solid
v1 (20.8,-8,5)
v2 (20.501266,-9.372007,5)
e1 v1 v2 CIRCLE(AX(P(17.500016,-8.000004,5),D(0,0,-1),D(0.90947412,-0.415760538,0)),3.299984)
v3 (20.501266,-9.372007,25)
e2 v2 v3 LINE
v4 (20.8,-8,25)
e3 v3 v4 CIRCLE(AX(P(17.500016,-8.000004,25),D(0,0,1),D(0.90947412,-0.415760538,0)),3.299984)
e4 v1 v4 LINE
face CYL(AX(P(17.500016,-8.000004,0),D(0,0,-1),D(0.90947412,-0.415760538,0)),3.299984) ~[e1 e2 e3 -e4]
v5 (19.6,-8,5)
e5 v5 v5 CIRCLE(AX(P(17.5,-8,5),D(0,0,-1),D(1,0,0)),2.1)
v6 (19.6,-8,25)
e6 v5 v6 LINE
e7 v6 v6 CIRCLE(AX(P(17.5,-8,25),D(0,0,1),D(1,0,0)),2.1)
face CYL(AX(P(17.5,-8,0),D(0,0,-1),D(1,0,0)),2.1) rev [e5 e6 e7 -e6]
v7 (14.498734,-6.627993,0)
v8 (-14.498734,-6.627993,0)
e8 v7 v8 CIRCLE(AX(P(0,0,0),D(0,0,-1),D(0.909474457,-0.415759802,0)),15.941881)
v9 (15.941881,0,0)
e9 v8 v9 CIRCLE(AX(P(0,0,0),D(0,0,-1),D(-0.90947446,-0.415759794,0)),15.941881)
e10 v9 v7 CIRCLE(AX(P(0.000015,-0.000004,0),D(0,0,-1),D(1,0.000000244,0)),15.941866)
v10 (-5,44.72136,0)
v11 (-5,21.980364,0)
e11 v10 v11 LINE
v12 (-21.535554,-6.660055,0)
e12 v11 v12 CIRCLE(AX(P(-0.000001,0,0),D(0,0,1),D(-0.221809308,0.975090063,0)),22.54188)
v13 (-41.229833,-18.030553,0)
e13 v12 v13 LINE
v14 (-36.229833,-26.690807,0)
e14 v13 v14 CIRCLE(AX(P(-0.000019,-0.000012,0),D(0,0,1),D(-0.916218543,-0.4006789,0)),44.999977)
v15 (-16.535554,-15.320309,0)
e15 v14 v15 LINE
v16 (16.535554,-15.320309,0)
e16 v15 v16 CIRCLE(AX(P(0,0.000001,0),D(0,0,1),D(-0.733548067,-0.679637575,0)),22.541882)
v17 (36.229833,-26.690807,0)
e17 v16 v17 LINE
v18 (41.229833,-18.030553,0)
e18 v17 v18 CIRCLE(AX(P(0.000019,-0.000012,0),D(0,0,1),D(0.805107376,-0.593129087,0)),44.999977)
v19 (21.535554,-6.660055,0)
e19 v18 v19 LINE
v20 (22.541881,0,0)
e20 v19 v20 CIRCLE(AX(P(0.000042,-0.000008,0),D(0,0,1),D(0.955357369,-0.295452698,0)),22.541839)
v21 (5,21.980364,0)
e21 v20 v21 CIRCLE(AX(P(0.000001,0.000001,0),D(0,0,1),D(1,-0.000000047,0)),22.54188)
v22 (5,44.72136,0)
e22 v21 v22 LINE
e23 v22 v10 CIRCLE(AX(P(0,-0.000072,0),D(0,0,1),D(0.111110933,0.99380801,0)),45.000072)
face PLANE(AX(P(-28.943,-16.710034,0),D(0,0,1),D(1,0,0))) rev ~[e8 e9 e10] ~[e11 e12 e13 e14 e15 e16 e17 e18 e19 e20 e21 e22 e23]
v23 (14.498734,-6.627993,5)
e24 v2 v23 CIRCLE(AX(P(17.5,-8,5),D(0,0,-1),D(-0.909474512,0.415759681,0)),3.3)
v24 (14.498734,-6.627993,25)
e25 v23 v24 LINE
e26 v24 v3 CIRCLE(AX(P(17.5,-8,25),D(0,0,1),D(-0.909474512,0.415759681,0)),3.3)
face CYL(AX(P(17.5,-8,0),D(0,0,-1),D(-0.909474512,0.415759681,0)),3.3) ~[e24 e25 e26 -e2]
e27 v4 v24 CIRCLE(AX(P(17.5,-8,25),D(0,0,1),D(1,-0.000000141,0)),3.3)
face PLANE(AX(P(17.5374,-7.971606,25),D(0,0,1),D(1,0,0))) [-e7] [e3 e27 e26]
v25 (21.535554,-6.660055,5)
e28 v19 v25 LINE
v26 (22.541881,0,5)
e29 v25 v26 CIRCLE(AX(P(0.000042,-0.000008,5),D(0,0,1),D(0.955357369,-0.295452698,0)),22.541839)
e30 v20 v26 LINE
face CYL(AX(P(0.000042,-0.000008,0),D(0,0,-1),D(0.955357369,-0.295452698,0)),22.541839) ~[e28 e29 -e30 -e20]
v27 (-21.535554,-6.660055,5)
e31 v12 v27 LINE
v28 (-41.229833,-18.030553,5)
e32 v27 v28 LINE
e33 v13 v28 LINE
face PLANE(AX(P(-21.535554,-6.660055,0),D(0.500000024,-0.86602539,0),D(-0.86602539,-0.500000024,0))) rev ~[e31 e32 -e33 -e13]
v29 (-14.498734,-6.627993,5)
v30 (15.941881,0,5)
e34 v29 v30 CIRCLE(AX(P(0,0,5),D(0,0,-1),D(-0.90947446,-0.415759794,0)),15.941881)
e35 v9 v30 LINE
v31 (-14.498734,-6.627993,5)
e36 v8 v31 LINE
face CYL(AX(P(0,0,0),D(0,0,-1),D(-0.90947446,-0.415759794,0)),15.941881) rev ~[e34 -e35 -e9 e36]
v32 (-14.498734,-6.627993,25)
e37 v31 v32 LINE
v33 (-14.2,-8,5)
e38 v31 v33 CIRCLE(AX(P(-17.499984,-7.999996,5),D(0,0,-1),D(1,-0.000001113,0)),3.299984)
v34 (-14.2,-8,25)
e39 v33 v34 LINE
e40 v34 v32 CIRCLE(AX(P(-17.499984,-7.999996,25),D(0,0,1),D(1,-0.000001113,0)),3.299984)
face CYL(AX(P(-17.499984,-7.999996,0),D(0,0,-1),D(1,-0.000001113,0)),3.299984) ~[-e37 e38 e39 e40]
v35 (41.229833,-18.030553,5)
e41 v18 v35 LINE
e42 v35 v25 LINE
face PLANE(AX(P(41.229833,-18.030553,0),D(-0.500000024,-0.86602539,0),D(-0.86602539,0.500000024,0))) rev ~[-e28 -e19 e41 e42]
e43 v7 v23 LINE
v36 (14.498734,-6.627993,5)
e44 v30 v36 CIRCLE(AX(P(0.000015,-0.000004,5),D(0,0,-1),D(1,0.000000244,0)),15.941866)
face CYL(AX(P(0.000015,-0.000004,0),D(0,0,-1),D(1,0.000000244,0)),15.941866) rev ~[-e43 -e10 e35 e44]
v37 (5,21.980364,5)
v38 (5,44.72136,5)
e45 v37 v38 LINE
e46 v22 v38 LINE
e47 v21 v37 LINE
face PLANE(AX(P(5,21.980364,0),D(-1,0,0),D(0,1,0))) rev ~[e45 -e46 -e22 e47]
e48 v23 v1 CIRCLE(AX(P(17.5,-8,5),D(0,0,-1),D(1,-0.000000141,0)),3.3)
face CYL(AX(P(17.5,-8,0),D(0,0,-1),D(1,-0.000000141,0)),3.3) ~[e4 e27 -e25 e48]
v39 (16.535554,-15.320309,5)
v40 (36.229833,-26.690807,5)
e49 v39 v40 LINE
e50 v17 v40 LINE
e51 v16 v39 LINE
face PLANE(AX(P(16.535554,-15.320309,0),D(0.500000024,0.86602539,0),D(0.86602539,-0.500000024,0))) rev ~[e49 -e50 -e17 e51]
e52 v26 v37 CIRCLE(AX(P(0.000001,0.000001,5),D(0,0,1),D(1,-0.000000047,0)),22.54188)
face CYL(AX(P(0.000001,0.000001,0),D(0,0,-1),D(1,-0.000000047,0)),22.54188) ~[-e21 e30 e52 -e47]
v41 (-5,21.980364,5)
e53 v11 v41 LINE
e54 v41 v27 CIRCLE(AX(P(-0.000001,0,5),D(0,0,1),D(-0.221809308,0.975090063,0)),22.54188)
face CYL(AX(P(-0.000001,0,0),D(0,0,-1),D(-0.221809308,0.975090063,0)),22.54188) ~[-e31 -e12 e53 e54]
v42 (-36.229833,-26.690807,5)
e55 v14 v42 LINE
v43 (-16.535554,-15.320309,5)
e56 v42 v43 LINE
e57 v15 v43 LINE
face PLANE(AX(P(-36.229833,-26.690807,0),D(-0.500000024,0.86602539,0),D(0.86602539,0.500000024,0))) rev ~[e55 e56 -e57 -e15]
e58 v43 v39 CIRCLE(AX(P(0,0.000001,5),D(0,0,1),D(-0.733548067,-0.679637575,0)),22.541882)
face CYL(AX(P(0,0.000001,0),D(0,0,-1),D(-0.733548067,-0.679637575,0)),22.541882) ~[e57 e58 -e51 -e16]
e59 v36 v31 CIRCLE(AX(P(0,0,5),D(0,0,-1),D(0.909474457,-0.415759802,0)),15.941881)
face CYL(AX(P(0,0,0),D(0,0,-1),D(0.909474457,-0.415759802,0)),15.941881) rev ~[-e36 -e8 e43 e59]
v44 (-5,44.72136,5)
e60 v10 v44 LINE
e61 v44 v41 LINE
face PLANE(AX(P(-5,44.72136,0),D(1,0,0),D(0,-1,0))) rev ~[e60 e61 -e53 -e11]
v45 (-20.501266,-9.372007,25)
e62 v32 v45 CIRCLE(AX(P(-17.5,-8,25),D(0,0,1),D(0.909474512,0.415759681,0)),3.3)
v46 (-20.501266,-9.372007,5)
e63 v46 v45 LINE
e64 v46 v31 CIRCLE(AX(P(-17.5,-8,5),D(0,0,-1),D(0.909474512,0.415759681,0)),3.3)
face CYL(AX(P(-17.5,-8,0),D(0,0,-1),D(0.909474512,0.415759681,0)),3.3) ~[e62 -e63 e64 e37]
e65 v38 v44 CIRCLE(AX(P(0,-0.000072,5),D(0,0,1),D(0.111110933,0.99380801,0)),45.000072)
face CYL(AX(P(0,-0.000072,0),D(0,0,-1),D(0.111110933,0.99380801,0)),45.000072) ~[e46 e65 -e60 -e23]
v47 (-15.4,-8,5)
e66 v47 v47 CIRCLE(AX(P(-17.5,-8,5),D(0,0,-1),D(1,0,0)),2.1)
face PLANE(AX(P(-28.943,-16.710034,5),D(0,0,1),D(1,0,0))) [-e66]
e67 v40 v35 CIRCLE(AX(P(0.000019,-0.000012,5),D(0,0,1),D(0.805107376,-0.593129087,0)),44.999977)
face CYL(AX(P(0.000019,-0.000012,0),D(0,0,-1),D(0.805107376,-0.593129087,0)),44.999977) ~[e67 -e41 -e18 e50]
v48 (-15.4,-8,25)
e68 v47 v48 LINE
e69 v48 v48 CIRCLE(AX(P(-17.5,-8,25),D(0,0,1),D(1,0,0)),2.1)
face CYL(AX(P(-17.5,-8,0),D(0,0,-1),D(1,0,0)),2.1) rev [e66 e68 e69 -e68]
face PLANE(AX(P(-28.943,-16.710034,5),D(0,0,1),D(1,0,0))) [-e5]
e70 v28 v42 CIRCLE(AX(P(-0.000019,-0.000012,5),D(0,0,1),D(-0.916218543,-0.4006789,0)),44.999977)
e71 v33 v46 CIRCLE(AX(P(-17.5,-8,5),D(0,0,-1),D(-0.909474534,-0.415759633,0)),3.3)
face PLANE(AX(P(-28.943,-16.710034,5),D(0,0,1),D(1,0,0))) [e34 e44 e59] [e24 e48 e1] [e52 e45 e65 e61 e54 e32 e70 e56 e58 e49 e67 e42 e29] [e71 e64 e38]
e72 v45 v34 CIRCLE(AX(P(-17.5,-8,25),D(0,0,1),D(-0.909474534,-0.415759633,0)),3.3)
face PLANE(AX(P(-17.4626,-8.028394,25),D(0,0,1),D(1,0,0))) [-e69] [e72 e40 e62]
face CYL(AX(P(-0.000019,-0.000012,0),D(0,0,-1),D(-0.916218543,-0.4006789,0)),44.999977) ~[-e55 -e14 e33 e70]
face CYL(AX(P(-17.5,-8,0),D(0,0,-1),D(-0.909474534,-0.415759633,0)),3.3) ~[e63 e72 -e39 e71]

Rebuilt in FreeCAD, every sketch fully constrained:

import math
import FreeCAD as App
import Part
import Sketcher

V = App.Vector
Q = App.Units.Quantity

doc = App.newDocument("Part")
params = doc.addObject("Spreadsheet::Sheet", "Params")
for row, (alias, value) in enumerate([
    ("pad1_length", "5 mm"),
    ("sketch2_diameter", "4.2 mm"),
    ("sketch2_diameter2", "4.2 mm"),
    ("sketch2_radius", "3.3 mm"),
    ("sketch2_radius2", "3.3 mm"),
    ("pad2_length", "25 mm"),
], start=1):
    params.set(f"A{row}", alias)
    params.set(f"B{row}", "=" + value)
    params.setAlias(f"B{row}", alias)

body = doc.addObject("PartDesign::Body", "Body")

# Sketch on XY plane
sketch1 = body.newObject("Sketcher::SketchObject", "Sketch")
sketch1.AttachmentSupport = (doc.getObject("XY_Plane"), [""])
sketch1.MapMode = "FlatFace"
sketch1.addGeometry([
    Part.LineSegment(V(16.535554, -15.320309, 0), V(36.229833, -26.690807, 0)),  # 0
    Part.ArcOfCircle(Part.Circle(V(0.000019, -0.000012, 0), V(0, 0, 1), 44.999977), math.radians(-36.379374), math.radians(-23.620627)),  # 1
    Part.LineSegment(V(41.229833, -18.030553, 0), V(21.535554, -6.660055, 0)),  # 2
    Part.ArcOfCircle(Part.Circle(V(0.000042, -0.000008, 0), V(0, 0, 1), 22.541839), math.radians(-17.184685), math.radians(0.00002)),  # 3
    Part.ArcOfCircle(Part.Circle(V(0.000001, 0.000001, 0), V(0, 0, 1), 22.54188), math.radians(-0.000003), math.radians(77.184675)),  # 4
    Part.LineSegment(V(5, 21.980364, 0), V(5, 44.72136, 0)),  # 5
    Part.ArcOfCircle(Part.Circle(V(0, -0.000072, 0), V(0, 0, 1), 45.000072), math.radians(83.62064), math.radians(96.37936)),  # 6
    Part.LineSegment(V(-5, 44.72136, 0), V(-5, 21.980364, 0)),  # 7
    Part.ArcOfCircle(Part.Circle(V(-0.000001, 0, 0), V(0, 0, 1), 22.54188), math.radians(102.815325), math.radians(197.184674)),  # 8
    Part.LineSegment(V(-21.535554, -6.660055, 0), V(-41.229833, -18.030553, 0)),  # 9
    Part.ArcOfCircle(Part.Circle(V(-0.000019, -0.000012, 0), V(0, 0, 1), 44.999977), math.radians(-156.379373), math.radians(-143.620626)),  # 10
    Part.LineSegment(V(-36.229833, -26.690807, 0), V(-16.535554, -15.320309, 0)),  # 11
    Part.ArcOfCircle(Part.Circle(V(0, 0.000001, 0), V(0, 0, 1), 22.541882), math.radians(-137.184672), math.radians(-42.815328)),  # 12
    Part.ArcOfCircle(Part.Circle(V(0, 0, 0), V(0, 0, 1), 15.941881), math.radians(-155.432826), math.radians(-24.567174)),  # 13
    Part.ArcOfCircle(Part.Circle(V(0, 0, 0), V(0, 0, 1), 15.941881), math.radians(-0.000001), math.radians(204.567173)),  # 14
    Part.ArcOfCircle(Part.Circle(V(0.000015, -0.000004, 0), V(0, 0, 1), 15.941866), math.radians(-24.567182), math.radians(0.000014)),  # 15
], False)
sketch1.addConstraint([
    Sketcher.Constraint("Coincident", 0, 2, 1, 1),
    Sketcher.Constraint("Coincident", 1, 2, 2, 1),
    Sketcher.Constraint("Coincident", 2, 2, 3, 1),
    Sketcher.Constraint("Coincident", 3, 2, 4, 1),
    Sketcher.Constraint("Coincident", 4, 2, 5, 1),
    Sketcher.Constraint("Coincident", 5, 2, 6, 1),
    Sketcher.Constraint("Coincident", 6, 2, 7, 1),
    Sketcher.Constraint("Coincident", 7, 2, 8, 1),
    Sketcher.Constraint("Coincident", 8, 2, 9, 1),
    Sketcher.Constraint("Coincident", 9, 2, 10, 1),
    Sketcher.Constraint("Coincident", 10, 2, 11, 1),
    Sketcher.Constraint("Coincident", 11, 2, 12, 1),
    Sketcher.Constraint("Coincident", 12, 2, 0, 1),
    Sketcher.Constraint("Coincident", 13, 1, 14, 2),
    Sketcher.Constraint("Coincident", 14, 1, 15, 2),
    Sketcher.Constraint("Coincident", 15, 1, 13, 2),
    Sketcher.Constraint("Vertical", 5),
    Sketcher.Constraint("Vertical", 7),
    Sketcher.Constraint("Coincident", 4, 3, -1, 1),
    Sketcher.Constraint("Coincident", 8, 3, -1, 1),
    Sketcher.Constraint("Coincident", 12, 3, -1, 1),
    Sketcher.Constraint("Coincident", 13, 3, -1, 1),
    Sketcher.Constraint("Coincident", 14, 3, -1, 1),
    Sketcher.Constraint("Coincident", 15, 3, 1, 3),
    Sketcher.Constraint("PointOnObject", 6, 3, -2),
    Sketcher.Constraint("PointOnObject", 3, 2, -1),
    Sketcher.Constraint("PointOnObject", 14, 1, -1),
    Sketcher.Constraint("DistanceX", -1, 1, 4, 2, Q("5 mm")),
    Sketcher.Constraint("DistanceX", 6, 2, -1, 1, Q("5 mm")),
    Sketcher.Constraint("DistanceX", 0, 2, 1, 2, Q("5 mm")),
    Sketcher.Constraint("DistanceX", 9, 2, 10, 2, Q("5 mm")),
    Sketcher.Constraint("DistanceX", 8, 2, 11, 2, Q("5 mm")),
    Sketcher.Constraint("DistanceX", 12, 2, 2, 2, Q("5 mm")),
    Sketcher.Constraint("DistanceX", 14, 1, 3, 2, Q("6.6 mm")),
    Sketcher.Constraint("Radius", 3, Q("22.541839 mm")),
    Sketcher.Constraint("Radius", 4, Q("22.54188 mm")),
    Sketcher.Constraint("Radius", 8, Q("22.54188 mm")),
    Sketcher.Constraint("Radius", 1, Q("44.999977 mm")),
    Sketcher.Constraint("Radius", 6, Q("45.000072 mm")),
    Sketcher.Constraint("Radius", 10, Q("44.999977 mm")),
    Sketcher.Constraint("Radius", 12, Q("22.541882 mm")),
    Sketcher.Constraint("Radius", 15, Q("15.941866 mm")),
    Sketcher.Constraint("DistanceY", 0, 2, 3, 3, Q("26.690799 mm")),
    Sketcher.Constraint("DistanceY", 9, 2, 8, 2, Q("11.370498 mm")),
    Sketcher.Constraint("DistanceY", 12, 2, 3, 3, Q("15.320301 mm")),
    Sketcher.Constraint("DistanceY", 5, 1, 5, 2, Q("22.740996 mm")),
    Sketcher.Constraint("DistanceY", 11, 2, -1, 1, Q("15.320309 mm")),
    Sketcher.Constraint("DistanceY", 12, 2, -1, 1, Q("15.320309 mm")),
    Sketcher.Constraint("DistanceX", 9, 2, 8, 2, Q("19.694279 mm")),
    Sketcher.Constraint("DistanceY", 9, 2, 10, 3, Q("18.030541 mm")),
    Sketcher.Constraint("DistanceX", 8, 2, 13, 1, Q("7.03682 mm")),
    Sketcher.Constraint("DistanceX", 15, 1, 2, 2, Q("7.03682 mm")),
])
pad1 = body.newObject("PartDesign::Pad", "Pad")
pad1.Profile = sketch1
pad1.setExpression("Length", "Params.pad1_length")

# Sketch on XY plane
sketch2 = body.newObject("Sketcher::SketchObject", "Sketch001")
sketch2.AttachmentSupport = (doc.getObject("XY_Plane"), [""])
sketch2.MapMode = "FlatFace"
sketch2.addGeometry([
    Part.ArcOfCircle(Part.Circle(V(-17.5, -8, 0), V(0, 0, 1), 3.3), math.radians(-155.432837), math.radians(0.000004)),  # 0
    Part.ArcOfCircle(Part.Circle(V(-17.499984, -7.999996, 0), V(0, 0, 1), 3.299984), math.radians(-0.000064), math.radians(24.56722)),  # 1
    Part.ArcOfCircle(Part.Circle(V(-17.5, -8, 0), V(0, 0, 1), 3.3), math.radians(24.567166), math.radians(204.567166)),  # 2
    Part.Circle(V(-17.5, -8, 0), V(0, 0, 1), 2.1),  # 3
    Part.ArcOfCircle(Part.Circle(V(17.5, -8, 0), V(0, 0, 1), 3.3), math.radians(-0.000008), math.radians(155.432841)),  # 4
    Part.ArcOfCircle(Part.Circle(V(17.5, -8, 0), V(0, 0, 1), 3.3), math.radians(155.432834), math.radians(335.432834)),  # 5
    Part.ArcOfCircle(Part.Circle(V(17.500016, -8.000004, 0), V(0, 0, 1), 3.299984), math.radians(-24.56722), math.radians(0.000064)),  # 6
    Part.Circle(V(17.5, -8, 0), V(0, 0, 1), 2.1),  # 7
], False)
sketch2.addConstraint([
    Sketcher.Constraint("Coincident", 0, 2, 1, 1),
    Sketcher.Constraint("Coincident", 1, 2, 2, 1),
    Sketcher.Constraint("Coincident", 2, 2, 0, 1),
    Sketcher.Constraint("Coincident", 4, 2, 5, 1),
    Sketcher.Constraint("Coincident", 5, 2, 6, 1),
    Sketcher.Constraint("Coincident", 6, 2, 4, 1),
    Sketcher.Constraint("Coincident", 2, 3, 0, 3),
    Sketcher.Constraint("Coincident", 3, 3, 0, 3),
    Sketcher.Constraint("Coincident", 5, 3, 4, 3),
    Sketcher.Constraint("Coincident", 7, 3, 4, 3),
    Sketcher.Constraint("Diameter", 3, Q("4.2 mm")),
    Sketcher.Constraint("Diameter", 7, Q("4.2 mm")),
    Sketcher.Constraint("Radius", 0, Q("3.3 mm")),
    Sketcher.Constraint("Radius", 4, Q("3.3 mm")),
    Sketcher.Constraint("DistanceY", 0, 3, -1, 1, Q("8 mm")),
    Sketcher.Constraint("DistanceY", 4, 3, -1, 1, Q("8 mm")),
    Sketcher.Constraint("DistanceY", 0, 2, -1, 1, Q("8 mm")),
    Sketcher.Constraint("DistanceY", 6, 2, -1, 1, Q("8 mm")),
    Sketcher.Constraint("DistanceX", 2, 3, 4, 3, Q("35 mm")),
    Sketcher.Constraint("DistanceX", 1, 3, 6, 3, Q("35 mm")),
    Sketcher.Constraint("DistanceX", 0, 3, -1, 1, Q("17.5 mm")),
    Sketcher.Constraint("Radius", 1, Q("3.299984 mm")),
    Sketcher.Constraint("DistanceX", 1, 3, 1, 2, Q("3.00125 mm")),
    Sketcher.Constraint("DistanceX", 2, 2, 1, 3, Q("3.001282 mm")),
    Sketcher.Constraint("DistanceX", 4, 2, 6, 3, Q("3.001282 mm")),
    Sketcher.Constraint("DistanceX", 6, 3, 5, 2, Q("3.00125 mm")),
])
sketch2.setExpression("Constraints[10]", "Params.sketch2_diameter")
sketch2.setExpression("Constraints[11]", "Params.sketch2_diameter2")
sketch2.setExpression("Constraints[12]", "Params.sketch2_radius")
sketch2.setExpression("Constraints[13]", "Params.sketch2_radius2")
pad2 = body.newObject("PartDesign::Pad", "Pad001")
pad2.Profile = sketch2
pad2.setExpression("Length", "Params.pad2_length")

doc.recompute()
